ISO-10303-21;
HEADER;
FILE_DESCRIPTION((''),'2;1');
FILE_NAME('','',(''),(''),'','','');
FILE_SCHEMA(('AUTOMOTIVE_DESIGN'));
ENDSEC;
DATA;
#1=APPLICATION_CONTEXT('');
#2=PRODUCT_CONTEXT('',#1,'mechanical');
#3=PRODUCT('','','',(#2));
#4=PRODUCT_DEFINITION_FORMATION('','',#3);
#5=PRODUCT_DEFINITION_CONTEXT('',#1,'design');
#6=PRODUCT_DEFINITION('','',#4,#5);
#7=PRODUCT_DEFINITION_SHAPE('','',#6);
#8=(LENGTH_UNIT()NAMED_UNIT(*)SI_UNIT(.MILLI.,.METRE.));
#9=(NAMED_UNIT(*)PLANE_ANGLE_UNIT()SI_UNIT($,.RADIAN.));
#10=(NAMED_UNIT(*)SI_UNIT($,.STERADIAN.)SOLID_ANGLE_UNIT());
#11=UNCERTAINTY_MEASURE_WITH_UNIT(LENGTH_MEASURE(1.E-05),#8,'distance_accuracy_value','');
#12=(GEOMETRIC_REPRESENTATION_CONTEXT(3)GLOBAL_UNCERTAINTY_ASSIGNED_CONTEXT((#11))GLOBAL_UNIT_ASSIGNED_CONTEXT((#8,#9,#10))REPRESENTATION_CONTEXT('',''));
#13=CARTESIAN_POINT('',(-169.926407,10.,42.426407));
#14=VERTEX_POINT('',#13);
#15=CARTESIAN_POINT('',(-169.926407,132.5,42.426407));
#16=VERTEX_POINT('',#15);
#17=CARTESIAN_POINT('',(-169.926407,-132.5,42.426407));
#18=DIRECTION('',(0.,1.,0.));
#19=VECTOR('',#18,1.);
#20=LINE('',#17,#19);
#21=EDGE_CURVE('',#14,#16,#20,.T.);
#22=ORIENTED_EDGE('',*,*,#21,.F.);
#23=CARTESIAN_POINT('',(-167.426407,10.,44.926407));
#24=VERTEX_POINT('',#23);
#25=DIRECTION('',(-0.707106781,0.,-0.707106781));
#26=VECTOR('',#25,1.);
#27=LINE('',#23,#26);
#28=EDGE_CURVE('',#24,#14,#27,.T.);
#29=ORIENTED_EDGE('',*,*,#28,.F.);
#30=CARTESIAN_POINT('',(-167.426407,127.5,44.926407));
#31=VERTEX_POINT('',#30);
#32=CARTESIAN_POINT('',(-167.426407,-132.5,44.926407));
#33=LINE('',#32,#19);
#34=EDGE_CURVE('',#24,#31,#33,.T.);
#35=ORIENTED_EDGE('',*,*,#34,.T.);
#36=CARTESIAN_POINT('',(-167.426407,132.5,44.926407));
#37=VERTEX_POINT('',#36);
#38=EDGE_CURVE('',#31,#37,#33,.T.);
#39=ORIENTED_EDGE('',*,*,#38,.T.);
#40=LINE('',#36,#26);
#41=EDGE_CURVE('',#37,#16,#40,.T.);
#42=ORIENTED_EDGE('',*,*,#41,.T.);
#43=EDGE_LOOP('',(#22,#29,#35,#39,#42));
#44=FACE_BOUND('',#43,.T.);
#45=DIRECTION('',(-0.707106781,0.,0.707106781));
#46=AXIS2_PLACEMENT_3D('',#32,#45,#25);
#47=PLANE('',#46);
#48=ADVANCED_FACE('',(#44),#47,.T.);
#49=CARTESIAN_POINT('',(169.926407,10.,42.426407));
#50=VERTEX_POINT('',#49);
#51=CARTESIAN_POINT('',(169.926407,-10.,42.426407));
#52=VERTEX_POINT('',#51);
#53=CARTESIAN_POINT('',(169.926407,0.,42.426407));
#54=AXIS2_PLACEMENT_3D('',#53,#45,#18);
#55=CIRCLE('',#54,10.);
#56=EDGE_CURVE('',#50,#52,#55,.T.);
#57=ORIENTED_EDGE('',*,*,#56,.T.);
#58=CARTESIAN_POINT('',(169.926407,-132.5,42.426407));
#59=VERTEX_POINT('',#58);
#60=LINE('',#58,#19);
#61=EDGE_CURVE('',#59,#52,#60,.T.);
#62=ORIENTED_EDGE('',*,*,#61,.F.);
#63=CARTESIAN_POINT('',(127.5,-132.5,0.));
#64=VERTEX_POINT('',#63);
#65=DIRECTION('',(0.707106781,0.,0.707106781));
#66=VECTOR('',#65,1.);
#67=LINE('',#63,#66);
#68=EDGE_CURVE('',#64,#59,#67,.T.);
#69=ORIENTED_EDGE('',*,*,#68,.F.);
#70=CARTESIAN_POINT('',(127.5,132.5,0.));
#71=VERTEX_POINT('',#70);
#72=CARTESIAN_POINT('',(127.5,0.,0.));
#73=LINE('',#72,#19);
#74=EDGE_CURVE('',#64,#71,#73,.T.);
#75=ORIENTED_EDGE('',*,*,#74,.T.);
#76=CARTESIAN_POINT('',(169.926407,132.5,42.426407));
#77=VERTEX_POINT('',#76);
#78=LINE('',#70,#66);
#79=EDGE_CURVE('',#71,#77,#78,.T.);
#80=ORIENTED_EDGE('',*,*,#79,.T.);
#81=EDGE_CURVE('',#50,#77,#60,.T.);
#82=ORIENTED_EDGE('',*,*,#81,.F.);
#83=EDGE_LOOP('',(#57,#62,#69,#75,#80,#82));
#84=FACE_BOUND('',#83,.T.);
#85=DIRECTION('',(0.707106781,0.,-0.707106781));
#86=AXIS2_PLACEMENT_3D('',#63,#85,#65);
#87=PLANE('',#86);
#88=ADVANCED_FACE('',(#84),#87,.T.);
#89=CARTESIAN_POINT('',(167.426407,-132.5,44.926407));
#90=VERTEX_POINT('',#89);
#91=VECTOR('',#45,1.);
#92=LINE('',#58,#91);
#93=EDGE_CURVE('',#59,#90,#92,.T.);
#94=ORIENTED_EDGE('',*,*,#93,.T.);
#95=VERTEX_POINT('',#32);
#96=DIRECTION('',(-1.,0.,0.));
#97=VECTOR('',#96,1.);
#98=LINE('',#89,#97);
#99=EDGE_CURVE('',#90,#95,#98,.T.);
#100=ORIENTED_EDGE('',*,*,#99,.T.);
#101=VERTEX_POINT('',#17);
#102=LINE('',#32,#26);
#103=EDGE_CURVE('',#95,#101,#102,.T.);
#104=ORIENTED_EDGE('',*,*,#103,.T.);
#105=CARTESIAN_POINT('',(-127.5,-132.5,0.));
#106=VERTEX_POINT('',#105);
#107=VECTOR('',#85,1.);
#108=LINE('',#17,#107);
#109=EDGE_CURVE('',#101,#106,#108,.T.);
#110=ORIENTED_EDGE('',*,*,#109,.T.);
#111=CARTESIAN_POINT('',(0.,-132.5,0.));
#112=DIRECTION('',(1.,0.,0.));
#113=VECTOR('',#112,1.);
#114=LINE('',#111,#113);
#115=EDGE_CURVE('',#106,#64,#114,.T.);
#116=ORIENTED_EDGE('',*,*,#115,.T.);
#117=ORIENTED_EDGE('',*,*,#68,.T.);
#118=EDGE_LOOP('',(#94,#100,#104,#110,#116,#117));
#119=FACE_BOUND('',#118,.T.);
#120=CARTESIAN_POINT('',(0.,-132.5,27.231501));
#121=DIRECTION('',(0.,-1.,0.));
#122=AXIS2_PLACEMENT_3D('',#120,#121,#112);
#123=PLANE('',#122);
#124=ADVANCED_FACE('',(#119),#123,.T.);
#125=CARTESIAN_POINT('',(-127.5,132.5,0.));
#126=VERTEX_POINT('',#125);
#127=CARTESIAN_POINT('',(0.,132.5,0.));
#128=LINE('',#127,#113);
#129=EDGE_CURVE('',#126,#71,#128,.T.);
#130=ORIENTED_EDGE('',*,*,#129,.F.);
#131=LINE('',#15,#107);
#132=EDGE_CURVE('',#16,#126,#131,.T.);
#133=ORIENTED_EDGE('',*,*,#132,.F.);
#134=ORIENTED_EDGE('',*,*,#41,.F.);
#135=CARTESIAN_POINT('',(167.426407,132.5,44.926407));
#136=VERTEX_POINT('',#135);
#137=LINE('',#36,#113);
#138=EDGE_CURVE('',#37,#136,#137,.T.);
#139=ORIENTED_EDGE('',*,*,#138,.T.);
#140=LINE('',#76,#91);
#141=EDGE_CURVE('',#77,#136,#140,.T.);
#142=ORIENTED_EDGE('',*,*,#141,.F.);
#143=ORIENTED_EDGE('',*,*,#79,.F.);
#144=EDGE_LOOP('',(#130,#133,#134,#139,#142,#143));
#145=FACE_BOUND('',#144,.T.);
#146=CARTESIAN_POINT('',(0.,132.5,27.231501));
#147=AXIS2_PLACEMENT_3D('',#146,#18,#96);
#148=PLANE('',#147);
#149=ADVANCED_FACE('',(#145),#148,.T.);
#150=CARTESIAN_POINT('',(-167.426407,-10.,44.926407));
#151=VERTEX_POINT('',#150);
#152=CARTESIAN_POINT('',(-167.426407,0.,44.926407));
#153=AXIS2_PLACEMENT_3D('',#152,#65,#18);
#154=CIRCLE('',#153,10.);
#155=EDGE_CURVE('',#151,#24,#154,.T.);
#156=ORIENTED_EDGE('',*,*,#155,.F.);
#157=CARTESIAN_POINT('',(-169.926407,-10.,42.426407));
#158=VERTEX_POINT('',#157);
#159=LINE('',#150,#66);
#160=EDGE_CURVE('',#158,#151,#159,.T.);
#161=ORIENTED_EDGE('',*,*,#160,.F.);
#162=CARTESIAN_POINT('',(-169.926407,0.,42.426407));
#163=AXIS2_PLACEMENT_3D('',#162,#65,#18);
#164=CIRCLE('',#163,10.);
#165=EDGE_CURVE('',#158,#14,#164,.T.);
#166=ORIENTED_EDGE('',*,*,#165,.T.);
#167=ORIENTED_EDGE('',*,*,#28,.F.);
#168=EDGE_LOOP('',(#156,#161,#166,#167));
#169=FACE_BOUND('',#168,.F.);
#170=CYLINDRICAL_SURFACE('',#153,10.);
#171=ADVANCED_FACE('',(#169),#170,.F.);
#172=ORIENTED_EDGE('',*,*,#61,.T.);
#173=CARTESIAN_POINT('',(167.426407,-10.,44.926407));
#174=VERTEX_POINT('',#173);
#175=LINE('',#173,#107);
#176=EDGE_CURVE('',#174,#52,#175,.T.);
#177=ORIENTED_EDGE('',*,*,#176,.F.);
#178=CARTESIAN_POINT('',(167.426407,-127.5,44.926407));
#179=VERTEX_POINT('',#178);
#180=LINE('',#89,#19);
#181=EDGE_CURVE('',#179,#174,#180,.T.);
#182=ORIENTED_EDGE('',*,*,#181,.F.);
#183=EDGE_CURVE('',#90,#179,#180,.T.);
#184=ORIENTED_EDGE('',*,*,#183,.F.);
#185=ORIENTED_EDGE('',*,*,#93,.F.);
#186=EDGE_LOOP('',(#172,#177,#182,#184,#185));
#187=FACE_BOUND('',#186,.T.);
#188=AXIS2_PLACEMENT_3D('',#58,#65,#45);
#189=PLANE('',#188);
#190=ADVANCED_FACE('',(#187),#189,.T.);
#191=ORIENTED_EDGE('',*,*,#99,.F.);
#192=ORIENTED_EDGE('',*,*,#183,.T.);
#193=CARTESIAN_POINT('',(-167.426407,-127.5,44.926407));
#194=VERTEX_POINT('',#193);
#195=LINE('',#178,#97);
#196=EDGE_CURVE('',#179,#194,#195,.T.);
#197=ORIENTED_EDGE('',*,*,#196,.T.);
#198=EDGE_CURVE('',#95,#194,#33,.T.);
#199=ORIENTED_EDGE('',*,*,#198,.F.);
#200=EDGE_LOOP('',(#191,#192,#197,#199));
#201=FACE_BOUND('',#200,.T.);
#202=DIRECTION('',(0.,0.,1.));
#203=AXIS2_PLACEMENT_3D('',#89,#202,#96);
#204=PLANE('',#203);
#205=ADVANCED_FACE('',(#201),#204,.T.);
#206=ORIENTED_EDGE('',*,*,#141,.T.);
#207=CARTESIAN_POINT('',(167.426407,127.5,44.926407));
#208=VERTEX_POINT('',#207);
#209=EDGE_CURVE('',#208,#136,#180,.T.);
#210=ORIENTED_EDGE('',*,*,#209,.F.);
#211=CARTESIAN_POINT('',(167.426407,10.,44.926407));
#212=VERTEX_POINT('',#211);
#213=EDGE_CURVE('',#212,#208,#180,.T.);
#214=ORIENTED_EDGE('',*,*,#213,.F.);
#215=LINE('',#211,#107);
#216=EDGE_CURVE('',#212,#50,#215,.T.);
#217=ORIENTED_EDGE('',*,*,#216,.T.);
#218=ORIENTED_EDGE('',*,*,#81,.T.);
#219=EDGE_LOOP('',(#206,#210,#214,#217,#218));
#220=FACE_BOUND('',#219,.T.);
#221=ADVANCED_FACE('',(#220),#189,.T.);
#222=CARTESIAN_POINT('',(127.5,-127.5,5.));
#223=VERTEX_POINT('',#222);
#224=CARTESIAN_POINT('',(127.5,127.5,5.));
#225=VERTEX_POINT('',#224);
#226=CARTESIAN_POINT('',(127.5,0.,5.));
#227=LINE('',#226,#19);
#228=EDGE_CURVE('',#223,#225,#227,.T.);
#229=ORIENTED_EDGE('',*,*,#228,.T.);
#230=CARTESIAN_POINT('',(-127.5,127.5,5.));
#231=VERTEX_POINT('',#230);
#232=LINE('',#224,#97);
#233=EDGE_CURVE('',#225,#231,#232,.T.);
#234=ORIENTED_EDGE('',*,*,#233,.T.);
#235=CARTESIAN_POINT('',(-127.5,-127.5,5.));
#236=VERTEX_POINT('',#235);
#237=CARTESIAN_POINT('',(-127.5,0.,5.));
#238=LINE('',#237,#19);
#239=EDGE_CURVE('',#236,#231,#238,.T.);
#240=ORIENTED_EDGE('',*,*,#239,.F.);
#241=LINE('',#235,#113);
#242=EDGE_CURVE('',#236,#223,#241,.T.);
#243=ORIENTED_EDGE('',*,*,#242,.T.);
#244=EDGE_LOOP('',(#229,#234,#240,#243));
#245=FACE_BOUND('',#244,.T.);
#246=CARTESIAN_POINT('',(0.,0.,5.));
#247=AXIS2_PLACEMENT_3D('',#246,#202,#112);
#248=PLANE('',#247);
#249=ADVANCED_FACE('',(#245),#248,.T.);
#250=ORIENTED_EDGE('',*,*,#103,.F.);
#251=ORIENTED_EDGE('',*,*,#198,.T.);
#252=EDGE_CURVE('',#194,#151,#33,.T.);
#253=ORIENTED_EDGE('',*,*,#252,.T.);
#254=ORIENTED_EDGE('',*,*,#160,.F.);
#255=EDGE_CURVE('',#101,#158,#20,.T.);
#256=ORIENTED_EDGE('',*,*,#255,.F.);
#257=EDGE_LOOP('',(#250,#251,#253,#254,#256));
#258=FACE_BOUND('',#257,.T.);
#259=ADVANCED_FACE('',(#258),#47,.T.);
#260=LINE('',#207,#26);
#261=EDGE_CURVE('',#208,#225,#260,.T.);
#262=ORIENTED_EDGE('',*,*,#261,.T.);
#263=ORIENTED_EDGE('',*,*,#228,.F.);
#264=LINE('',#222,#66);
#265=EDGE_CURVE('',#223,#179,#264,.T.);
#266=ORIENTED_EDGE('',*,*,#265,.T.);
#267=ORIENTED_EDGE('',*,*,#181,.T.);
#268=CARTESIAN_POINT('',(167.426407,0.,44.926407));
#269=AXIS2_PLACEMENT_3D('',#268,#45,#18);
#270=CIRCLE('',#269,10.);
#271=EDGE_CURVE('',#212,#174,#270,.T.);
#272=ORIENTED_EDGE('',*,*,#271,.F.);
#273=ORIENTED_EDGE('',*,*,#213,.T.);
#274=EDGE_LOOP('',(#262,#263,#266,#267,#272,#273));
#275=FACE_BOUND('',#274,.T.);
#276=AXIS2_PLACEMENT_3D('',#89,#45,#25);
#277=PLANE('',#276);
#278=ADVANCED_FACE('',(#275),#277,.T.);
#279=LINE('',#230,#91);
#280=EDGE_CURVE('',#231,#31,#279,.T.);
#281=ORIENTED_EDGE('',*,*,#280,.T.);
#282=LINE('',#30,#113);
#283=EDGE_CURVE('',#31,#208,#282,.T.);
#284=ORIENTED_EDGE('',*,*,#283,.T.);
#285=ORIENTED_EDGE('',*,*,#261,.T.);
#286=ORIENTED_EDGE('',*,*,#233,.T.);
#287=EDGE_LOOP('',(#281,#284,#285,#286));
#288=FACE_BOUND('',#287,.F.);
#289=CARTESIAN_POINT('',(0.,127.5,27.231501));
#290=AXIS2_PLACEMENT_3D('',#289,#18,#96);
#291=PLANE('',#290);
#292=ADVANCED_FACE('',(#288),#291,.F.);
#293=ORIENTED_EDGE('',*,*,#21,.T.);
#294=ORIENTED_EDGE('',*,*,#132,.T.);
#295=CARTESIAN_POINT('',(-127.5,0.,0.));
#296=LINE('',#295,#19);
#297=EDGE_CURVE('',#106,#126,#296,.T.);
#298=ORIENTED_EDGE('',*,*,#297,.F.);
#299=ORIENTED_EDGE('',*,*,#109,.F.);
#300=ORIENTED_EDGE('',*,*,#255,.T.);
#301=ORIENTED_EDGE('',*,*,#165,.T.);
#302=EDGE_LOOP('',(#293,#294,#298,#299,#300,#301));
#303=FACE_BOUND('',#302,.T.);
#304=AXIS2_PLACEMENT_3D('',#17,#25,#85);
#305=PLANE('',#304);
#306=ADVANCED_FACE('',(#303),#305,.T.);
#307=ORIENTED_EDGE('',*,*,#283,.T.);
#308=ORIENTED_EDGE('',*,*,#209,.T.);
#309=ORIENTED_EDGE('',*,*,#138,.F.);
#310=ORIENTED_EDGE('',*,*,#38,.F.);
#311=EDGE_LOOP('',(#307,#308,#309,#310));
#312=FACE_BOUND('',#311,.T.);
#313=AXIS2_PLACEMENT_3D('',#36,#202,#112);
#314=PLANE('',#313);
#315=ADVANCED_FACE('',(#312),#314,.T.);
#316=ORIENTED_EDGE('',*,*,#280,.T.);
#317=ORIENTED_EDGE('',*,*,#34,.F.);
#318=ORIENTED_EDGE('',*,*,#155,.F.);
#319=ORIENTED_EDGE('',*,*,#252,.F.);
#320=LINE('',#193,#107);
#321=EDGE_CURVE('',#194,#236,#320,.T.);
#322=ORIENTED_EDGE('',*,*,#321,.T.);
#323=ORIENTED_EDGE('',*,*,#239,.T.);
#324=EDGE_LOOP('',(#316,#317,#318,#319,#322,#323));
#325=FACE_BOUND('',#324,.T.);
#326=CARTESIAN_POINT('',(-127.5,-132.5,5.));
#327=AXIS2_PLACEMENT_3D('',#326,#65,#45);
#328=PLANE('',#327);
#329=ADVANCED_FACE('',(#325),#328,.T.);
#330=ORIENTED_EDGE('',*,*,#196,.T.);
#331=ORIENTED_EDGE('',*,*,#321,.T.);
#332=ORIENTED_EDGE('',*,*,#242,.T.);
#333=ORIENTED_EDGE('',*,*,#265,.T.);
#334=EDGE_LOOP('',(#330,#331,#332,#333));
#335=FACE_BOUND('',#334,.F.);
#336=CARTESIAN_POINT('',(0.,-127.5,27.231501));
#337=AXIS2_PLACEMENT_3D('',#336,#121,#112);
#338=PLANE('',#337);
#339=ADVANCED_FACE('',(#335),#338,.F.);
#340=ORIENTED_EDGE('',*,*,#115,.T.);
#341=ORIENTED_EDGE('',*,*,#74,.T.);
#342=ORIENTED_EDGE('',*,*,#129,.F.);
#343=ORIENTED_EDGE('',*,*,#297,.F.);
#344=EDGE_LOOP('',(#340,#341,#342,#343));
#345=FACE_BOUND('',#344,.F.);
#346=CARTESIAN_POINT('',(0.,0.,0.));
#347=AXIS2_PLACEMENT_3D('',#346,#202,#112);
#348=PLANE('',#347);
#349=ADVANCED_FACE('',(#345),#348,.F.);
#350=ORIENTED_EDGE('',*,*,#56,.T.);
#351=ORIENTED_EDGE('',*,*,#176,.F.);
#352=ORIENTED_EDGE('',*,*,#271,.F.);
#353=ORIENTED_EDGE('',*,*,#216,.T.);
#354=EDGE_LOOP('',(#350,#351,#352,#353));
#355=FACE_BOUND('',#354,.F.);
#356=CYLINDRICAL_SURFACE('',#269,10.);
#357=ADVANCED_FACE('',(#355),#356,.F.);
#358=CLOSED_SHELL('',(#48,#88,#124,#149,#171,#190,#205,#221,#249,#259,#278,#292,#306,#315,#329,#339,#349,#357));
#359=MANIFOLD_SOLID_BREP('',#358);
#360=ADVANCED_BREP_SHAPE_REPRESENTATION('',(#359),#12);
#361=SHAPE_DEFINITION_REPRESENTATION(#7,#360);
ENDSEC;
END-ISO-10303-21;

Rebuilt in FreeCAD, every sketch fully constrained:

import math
import FreeCAD as App
import Part
import Sketcher

V = App.Vector
Q = App.Units.Quantity


def add_polygon(sketch, points):
    """Adds a closed chain of lines whose ends are joined by coincident constraints."""
    first, n = sketch.GeometryCount, len(points)
    for a, b in zip(points, points[1:] + points[:1]):
        sketch.addGeometry(Part.LineSegment(App.Vector(*a, 0), App.Vector(*b, 0)), False)
    for i in range(n):
        sketch.addConstraint(Sketcher.Constraint("Coincident", first + i, 2, first + (i + 1) % n, 1))

doc = App.newDocument("Part")
body = doc.addObject("PartDesign::Body", "Body")

# Sketch on XY plane
sketch1 = body.newObject("Sketcher::SketchObject", "Sketch")
sketch1.AttachmentSupport = (doc.getObject("XY_Plane"), [""])
sketch1.MapMode = "FlatFace"
add_polygon(sketch1, [(-127.5, 132.5), (-127.5, -132.5), (127.5, -132.5), (127.5, 132.5)])  # lines 0-3
sketch1.addConstraint(Sketcher.Constraint("Vertical", 0))
sketch1.addConstraint(Sketcher.Constraint("Horizontal", 1))
sketch1.addConstraint(Sketcher.Constraint("Vertical", 2))
sketch1.addConstraint(Sketcher.Constraint("Horizontal", 3))
sketch1.addConstraint(Sketcher.Constraint("Symmetric", 0, 2, 2, 2, -1, 1))
sketch1.addConstraint(Sketcher.Constraint("DistanceX", 1, 1, 1, 2, Q("255 mm")))
sketch1.addConstraint(Sketcher.Constraint("DistanceY", 0, 2, 0, 1, Q("265 mm")))
pad1 = body.newObject("PartDesign::Pad", "Pad")
pad1.Profile = sketch1
pad1.Length = 5

# Sketch on XZ plane
sketch2 = body.newObject("Sketcher::SketchObject", "Sketch001")
sketch2.AttachmentSupport = (doc.getObject("XZ_Plane"), [""])
sketch2.MapMode = "FlatFace"
sketch2.AttachmentOffset = App.Placement(V(0, 0, 132.5), App.Rotation())
add_polygon(sketch2, [(-169.926407, 42.426407), (-127.5, 0), (-127.5, 5), (-167.426407, 44.926407)])  # lines 0-3
add_polygon(sketch2, [(127.5, 5), (127.5, 0), (169.926407, 42.426407), (167.426407, 44.926407)])  # lines 4-7
sketch2.addConstraint(Sketcher.Constraint("Vertical", 1))
sketch2.addConstraint(Sketcher.Constraint("Vertical", 4))
sketch2.addConstraint(Sketcher.Constraint("Symmetric", 0, 2, 4, 2, -1, 1))
sketch2.addConstraint(Sketcher.Constraint("Symmetric", 3, 2, 5, 2, -2))
sketch2.addConstraint(Sketcher.Constraint("Symmetric", 2, 2, 6, 2, -2))
sketch2.addConstraint(Sketcher.Constraint("PointOnObject", 0, 2, -1))
sketch2.addConstraint(Sketcher.Constraint("Parallel", 0, 2))
sketch2.addConstraint(Sketcher.Constraint("Perpendicular", 2, 3))
sketch2.addConstraint(Sketcher.Constraint("Parallel", 3, 5))
sketch2.addConstraint(Sketcher.Constraint("Perpendicular", 6, 7))
sketch2.addConstraint(Sketcher.Constraint("DistanceY", 1, 1, 1, 2, Q("5 mm")))
sketch2.addConstraint(Sketcher.Constraint("Distance", 0, Q("60 mm")))
sketch2.addConstraint(Sketcher.Constraint("DistanceX", 0, 2, 4, 2, Q("255 mm")))
pad2 = body.newObject("PartDesign::Pad", "Pad001")
pad2.Profile = sketch2
pad2.Length = 265
pad2.Reversed = True

# Sketch on an angled plane
sketch3 = body.newObject("Sketcher::SketchObject", "Sketch002")
sketch3.Placement = App.Placement(V(-61.25, 0, -61.25), App.Rotation(V(0, 1, 0), V(-0.707106781, 0, 0.707106781), V(0.707106781, 0, 0.707106781), "ZXY"))
sketch3.addGeometry(Part.Circle(V(0, 150.156115, 0), V(0, 0, 1), 10), False)
sketch3.addConstraint(Sketcher.Constraint("PointOnObject", 0, 3, -2))
sketch3.addConstraint(Sketcher.Constraint("Diameter", 0, Q("20 mm")))
sketch3.addConstraint(Sketcher.Constraint("DistanceY", -1, 1, 0, 3, Q("150.156115 mm")))
pocket1 = body.newObject("PartDesign::Pocket", "Pocket")
pocket1.Profile = sketch3
pocket1.Length = 25

# Sketch on an angled plane
sketch4 = body.newObject("Sketcher::SketchObject", "Sketch003")
sketch4.Placement = App.Placement(V(61.25, 0, -61.25), App.Rotation(V(0, -1, 0), V(0.707106781, 0, 0.707106781), V(-0.707106781, 0, 0.707106781), "ZXY"))
sketch4.addGeometry(Part.ArcOfCircle(Part.Circle(V(0, 150.156115, 0), V(0, 0, 1), 10), math.radians(180), math.radians(360)), False)
sketch4.addGeometry(Part.LineSegment(V(10, 150.156115, 0), V(-10, 150.156115, 0)), False)
sketch4.addConstraint(Sketcher.Constraint("Coincident", 0, 1, 1, 2))
sketch4.addConstraint(Sketcher.Constraint("Coincident", 1, 1, 0, 2))
sketch4.addConstraint(Sketcher.Constraint("Horizontal", 1))
sketch4.addConstraint(Sketcher.Constraint("PointOnObject", 0, 3, -2))
sketch4.addConstraint(Sketcher.Constraint("Radius", 0, Q("10 mm")))
sketch4.addConstraint(Sketcher.Constraint("DistanceY", -1, 1, 0, 3, Q("150.156115 mm")))
sketch4.addConstraint(Sketcher.Constraint("DistanceY", -1, 1, 0, 1, Q("150.156115 mm")))
pocket2 = body.newObject("PartDesign::Pocket", "Pocket001")
pocket2.Profile = sketch4
pocket2.Length = 25

# Sketch on XZ plane
sketch5 = body.newObject("Sketcher::SketchObject", "Sketch004")
sketch5.AttachmentSupport = (doc.getObject("XZ_Plane"), [""])
sketch5.MapMode = "FlatFace"
sketch5.AttachmentOffset = App.Placement(V(0, 0, 132.5), App.Rotation())
add_polygon(sketch5, [(167.426407, 44.926407), (-167.426407, 44.926407), (-127.5, 5), (127.5, 5)])  # lines 0-3
sketch5.addConstraint(Sketcher.Constraint("Horizontal", 0))
sketch5.addConstraint(Sketcher.Constraint("Horizontal", 2))
sketch5.addConstraint(Sketcher.Constraint("Perpendicular", 1, 3))
sketch5.addConstraint(Sketcher.Constraint("Equal", 1, 3))
sketch5.addConstraint(Sketcher.Constraint("DistanceX", 2, 1, 2, 2, Q("255 mm")))
sketch5.addConstraint(Sketcher.Constraint("DistanceY", -1, 1, 1, 2, Q("5 mm")))
sketch5.addConstraint(Sketcher.Constraint("DistanceX", 1, 2, -1, 1, Q("127.5 mm")))
sketch5.addConstraint(Sketcher.Constraint("DistanceX", 0, 2, 0, 1, Q("334.852814 mm")))
pad3 = body.newObject("PartDesign::Pad", "Pad002")
pad3.Profile = sketch5
pad3.Length = 5
pad3.Reversed = True

# Sketch on XZ plane
sketch6 = body.newObject("Sketcher::SketchObject", "Sketch005")
sketch6.AttachmentSupport = (doc.getObject("XZ_Plane"), [""])
sketch6.MapMode = "FlatFace"
sketch6.AttachmentOffset = App.Placement(V(0, 0, -132.5), App.Rotation())
add_polygon(sketch6, [(-167.426407, 44.926407), (167.426407, 44.926407), (127.5, 5), (-127.5, 5)])  # lines 0-3
sketch6.addConstraint(Sketcher.Constraint("Horizontal", 0))
sketch6.addConstraint(Sketcher.Constraint("Horizontal", 2))
sketch6.addConstraint(Sketcher.Constraint("Perpendicular", 1, 3))
sketch6.addConstraint(Sketcher.Constraint("Equal", 1, 3))
sketch6.addConstraint(Sketcher.Constraint("DistanceX", 2, 2, 2, 1, Q("255 mm")))
sketch6.addConstraint(Sketcher.Constraint("DistanceY", -1, 1, 1, 2, Q("5 mm")))
sketch6.addConstraint(Sketcher.Constraint("DistanceX", -1, 1, 1, 2, Q("127.5 mm")))
sketch6.addConstraint(Sketcher.Constraint("DistanceX", 0, 1, 0, 2, Q("334.852814 mm")))
pad4 = body.newObject("PartDesign::Pad", "Pad003")
pad4.Profile = sketch6
pad4.Length = 5

doc.recompute()
